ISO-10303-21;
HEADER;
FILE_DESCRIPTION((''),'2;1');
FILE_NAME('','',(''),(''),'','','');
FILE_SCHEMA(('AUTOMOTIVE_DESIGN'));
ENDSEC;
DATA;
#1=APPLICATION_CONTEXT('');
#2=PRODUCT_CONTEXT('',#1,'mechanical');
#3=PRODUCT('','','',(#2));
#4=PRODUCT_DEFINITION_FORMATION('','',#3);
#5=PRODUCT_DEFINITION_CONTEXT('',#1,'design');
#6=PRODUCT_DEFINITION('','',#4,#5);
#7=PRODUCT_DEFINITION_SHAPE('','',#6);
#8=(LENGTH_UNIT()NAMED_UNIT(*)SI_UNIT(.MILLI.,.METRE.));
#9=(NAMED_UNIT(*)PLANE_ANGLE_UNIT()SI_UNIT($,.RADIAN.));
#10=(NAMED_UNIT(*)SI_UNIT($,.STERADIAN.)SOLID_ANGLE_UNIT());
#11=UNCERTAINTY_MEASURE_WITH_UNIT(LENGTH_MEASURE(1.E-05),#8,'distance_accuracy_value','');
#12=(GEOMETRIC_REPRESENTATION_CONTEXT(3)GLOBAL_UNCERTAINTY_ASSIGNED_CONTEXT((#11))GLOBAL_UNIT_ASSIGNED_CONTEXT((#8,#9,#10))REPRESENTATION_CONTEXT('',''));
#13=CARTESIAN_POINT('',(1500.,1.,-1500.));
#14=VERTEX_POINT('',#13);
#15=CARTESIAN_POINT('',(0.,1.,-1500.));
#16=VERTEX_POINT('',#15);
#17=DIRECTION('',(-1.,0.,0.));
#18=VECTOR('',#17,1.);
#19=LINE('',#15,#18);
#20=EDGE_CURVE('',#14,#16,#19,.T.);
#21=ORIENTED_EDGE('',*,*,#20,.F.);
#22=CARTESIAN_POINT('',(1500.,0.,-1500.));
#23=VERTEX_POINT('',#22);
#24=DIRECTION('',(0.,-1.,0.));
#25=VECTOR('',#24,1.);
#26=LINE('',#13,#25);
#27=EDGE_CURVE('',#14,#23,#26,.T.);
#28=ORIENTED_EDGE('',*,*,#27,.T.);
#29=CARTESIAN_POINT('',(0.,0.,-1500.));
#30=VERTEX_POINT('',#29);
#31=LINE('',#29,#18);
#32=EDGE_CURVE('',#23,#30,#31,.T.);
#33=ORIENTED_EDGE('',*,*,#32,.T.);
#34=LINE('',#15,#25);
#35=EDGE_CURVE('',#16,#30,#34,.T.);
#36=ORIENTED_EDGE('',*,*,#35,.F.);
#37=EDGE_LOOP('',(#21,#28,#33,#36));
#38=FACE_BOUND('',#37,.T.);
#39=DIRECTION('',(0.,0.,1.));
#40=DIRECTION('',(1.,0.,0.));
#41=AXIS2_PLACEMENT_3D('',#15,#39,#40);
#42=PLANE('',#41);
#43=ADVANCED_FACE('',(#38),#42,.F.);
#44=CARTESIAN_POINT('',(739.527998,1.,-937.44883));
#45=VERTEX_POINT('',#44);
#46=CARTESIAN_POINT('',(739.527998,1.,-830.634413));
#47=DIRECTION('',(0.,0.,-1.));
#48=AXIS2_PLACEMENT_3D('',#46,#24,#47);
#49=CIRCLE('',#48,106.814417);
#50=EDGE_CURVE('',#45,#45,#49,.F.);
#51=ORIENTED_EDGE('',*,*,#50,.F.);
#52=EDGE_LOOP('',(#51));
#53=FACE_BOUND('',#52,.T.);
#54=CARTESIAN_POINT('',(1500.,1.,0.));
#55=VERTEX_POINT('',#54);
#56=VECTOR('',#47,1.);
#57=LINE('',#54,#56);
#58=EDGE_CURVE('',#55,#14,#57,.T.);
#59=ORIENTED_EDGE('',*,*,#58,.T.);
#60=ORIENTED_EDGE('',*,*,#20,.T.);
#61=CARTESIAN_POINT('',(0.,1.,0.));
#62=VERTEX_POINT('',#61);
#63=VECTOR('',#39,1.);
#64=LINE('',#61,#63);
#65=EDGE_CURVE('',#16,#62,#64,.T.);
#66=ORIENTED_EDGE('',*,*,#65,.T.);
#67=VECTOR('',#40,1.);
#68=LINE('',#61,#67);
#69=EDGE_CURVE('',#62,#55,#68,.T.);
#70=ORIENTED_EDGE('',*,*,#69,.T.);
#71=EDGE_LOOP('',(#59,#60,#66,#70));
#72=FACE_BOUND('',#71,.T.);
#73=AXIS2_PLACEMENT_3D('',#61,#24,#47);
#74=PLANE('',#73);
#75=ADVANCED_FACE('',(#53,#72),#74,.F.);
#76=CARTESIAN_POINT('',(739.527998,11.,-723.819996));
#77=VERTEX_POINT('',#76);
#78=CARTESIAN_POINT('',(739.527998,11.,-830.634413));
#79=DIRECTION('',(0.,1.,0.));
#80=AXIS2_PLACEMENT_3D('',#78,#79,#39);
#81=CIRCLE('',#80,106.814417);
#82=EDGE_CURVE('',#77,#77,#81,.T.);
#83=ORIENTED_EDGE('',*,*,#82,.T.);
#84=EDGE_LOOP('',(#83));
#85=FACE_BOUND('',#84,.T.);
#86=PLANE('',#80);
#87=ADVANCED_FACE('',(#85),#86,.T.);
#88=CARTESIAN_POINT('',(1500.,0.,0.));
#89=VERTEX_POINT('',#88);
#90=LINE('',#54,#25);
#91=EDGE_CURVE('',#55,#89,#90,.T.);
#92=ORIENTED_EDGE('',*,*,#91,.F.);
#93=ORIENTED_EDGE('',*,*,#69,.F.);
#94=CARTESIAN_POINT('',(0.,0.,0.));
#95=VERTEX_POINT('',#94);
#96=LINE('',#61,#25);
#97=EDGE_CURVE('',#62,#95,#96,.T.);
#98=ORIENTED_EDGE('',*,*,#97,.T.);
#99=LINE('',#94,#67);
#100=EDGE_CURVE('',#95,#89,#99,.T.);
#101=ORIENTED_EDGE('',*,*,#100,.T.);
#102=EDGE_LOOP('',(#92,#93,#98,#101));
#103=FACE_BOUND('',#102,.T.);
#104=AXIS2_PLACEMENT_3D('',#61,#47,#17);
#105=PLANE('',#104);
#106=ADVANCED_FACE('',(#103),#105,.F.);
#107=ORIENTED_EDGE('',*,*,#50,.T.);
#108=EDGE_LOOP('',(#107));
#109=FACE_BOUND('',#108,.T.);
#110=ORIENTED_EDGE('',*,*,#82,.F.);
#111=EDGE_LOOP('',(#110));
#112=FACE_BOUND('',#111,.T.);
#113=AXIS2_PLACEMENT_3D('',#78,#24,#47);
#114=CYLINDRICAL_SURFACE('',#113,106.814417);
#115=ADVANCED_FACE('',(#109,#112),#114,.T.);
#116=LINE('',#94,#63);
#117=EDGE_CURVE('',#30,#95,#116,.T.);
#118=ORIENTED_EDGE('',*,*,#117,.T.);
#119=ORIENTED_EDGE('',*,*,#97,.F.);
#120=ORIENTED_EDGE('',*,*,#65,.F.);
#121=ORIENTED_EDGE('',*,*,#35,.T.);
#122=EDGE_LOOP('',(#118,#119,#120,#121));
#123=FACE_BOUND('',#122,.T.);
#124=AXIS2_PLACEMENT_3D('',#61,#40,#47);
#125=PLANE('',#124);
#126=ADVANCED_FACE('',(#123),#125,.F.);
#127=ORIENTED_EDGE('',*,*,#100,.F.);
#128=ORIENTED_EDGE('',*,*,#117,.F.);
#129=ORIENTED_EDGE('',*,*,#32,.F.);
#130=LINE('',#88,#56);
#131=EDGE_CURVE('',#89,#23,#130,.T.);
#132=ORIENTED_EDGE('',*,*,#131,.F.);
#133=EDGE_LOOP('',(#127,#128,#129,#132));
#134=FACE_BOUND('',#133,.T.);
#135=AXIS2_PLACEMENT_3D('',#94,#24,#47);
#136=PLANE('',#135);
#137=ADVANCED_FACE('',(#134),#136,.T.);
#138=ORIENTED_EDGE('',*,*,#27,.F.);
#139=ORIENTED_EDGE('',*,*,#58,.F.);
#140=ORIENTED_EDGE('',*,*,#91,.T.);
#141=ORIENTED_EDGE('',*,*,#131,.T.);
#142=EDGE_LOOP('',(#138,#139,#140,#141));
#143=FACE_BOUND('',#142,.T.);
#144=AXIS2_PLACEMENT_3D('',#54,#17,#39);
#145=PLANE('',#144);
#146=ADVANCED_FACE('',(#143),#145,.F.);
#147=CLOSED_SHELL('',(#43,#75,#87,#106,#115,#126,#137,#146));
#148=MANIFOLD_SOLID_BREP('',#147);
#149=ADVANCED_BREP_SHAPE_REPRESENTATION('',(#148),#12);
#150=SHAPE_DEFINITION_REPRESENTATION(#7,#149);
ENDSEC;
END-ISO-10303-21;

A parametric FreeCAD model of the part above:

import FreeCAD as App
import Part
import Sketcher

V = App.Vector
Q = App.Units.Quantity

doc = App.newDocument("Part")
params = doc.addObject("Spreadsheet::Sheet", "Params")
for row, (alias, value) in enumerate([
    ("sketch1_width", "1500 mm"),
    ("pad1_length", "1 mm"),
    ("pad2_length", "10 mm"),
], start=1):
    params.set(f"A{row}", alias)
    params.set(f"B{row}", "=" + value)
    params.setAlias(f"B{row}", alias)

body = doc.addObject("PartDesign::Body", "Body")

sketch1 = doc.addObject("Sketcher::SketchObject", "Sketch")
body.addObject(sketch1)
sketch1.AttachmentSupport = (doc.XZ_Plane, [""])
sketch1.MapMode = "FlatFace"
sketch1.addGeometry([
    Part.LineSegment(V(0, -1500, 0), V(0, 0, 0)),
    Part.LineSegment(V(0, 0, 0), V(1500, 0, 0)),
    Part.LineSegment(V(1500, 0, 0), V(1500, -1500, 0)),
    Part.LineSegment(V(1500, -1500, 0), V(0, -1500, 0)),
], False)
sketch1.addConstraint([
    Sketcher.Constraint("Coincident", 0, 2, 1, 1),
    Sketcher.Constraint("Coincident", 1, 2, 2, 1),
    Sketcher.Constraint("Coincident", 2, 2, 3, 1),
    Sketcher.Constraint("Coincident", 3, 2, 0, 1),
    Sketcher.Constraint("Vertical", 0),
    Sketcher.Constraint("Horizontal", 1),
    Sketcher.Constraint("Vertical", 2),
    Sketcher.Constraint("Horizontal", 3),
    Sketcher.Constraint("Coincident", 0, 2, -1, 1),
    Sketcher.Constraint("Equal", 3, 0),
    Sketcher.Constraint("DistanceX", 1, 1, 1, 2, Q("1500 mm")),
])
sketch1.setExpression("Constraints[10]", "Params.sketch1_width")
pad1 = doc.addObject("PartDesign::Pad", "Pad")
body.addObject(pad1)
pad1.Profile = sketch1
pad1.setExpression("Length", "Params.pad1_length")
pad1.Reversed = True

sketch2 = doc.addObject("Sketcher::SketchObject", "Sketch001")
body.addObject(sketch2)
sketch2.AttachmentSupport = (doc.XZ_Plane, [""])
sketch2.MapMode = "FlatFace"
sketch2.AttachmentOffset = App.Placement(V(0, 0, -1), App.Rotation())
sketch2.addGeometry(Part.Circle(V(740, -831, 0), V(0, 0, 1), 107), False)
sketch2.addConstraint([
    Sketcher.Constraint("Diameter", 0, Q("213.628834 mm")),
    Sketcher.Constraint("DistanceX", -1, 1, 0, 3, Q("739.527998 mm")),
    Sketcher.Constraint("DistanceY", 0, 3, -1, 1, Q("830.634413 mm")),
])
pad2 = doc.addObject("PartDesign::Pad", "Pad001")
body.addObject(pad2)
pad2.Profile = sketch2
pad2.setExpression("Length", "Params.pad2_length")
pad2.Reversed = True

doc.recompute()
